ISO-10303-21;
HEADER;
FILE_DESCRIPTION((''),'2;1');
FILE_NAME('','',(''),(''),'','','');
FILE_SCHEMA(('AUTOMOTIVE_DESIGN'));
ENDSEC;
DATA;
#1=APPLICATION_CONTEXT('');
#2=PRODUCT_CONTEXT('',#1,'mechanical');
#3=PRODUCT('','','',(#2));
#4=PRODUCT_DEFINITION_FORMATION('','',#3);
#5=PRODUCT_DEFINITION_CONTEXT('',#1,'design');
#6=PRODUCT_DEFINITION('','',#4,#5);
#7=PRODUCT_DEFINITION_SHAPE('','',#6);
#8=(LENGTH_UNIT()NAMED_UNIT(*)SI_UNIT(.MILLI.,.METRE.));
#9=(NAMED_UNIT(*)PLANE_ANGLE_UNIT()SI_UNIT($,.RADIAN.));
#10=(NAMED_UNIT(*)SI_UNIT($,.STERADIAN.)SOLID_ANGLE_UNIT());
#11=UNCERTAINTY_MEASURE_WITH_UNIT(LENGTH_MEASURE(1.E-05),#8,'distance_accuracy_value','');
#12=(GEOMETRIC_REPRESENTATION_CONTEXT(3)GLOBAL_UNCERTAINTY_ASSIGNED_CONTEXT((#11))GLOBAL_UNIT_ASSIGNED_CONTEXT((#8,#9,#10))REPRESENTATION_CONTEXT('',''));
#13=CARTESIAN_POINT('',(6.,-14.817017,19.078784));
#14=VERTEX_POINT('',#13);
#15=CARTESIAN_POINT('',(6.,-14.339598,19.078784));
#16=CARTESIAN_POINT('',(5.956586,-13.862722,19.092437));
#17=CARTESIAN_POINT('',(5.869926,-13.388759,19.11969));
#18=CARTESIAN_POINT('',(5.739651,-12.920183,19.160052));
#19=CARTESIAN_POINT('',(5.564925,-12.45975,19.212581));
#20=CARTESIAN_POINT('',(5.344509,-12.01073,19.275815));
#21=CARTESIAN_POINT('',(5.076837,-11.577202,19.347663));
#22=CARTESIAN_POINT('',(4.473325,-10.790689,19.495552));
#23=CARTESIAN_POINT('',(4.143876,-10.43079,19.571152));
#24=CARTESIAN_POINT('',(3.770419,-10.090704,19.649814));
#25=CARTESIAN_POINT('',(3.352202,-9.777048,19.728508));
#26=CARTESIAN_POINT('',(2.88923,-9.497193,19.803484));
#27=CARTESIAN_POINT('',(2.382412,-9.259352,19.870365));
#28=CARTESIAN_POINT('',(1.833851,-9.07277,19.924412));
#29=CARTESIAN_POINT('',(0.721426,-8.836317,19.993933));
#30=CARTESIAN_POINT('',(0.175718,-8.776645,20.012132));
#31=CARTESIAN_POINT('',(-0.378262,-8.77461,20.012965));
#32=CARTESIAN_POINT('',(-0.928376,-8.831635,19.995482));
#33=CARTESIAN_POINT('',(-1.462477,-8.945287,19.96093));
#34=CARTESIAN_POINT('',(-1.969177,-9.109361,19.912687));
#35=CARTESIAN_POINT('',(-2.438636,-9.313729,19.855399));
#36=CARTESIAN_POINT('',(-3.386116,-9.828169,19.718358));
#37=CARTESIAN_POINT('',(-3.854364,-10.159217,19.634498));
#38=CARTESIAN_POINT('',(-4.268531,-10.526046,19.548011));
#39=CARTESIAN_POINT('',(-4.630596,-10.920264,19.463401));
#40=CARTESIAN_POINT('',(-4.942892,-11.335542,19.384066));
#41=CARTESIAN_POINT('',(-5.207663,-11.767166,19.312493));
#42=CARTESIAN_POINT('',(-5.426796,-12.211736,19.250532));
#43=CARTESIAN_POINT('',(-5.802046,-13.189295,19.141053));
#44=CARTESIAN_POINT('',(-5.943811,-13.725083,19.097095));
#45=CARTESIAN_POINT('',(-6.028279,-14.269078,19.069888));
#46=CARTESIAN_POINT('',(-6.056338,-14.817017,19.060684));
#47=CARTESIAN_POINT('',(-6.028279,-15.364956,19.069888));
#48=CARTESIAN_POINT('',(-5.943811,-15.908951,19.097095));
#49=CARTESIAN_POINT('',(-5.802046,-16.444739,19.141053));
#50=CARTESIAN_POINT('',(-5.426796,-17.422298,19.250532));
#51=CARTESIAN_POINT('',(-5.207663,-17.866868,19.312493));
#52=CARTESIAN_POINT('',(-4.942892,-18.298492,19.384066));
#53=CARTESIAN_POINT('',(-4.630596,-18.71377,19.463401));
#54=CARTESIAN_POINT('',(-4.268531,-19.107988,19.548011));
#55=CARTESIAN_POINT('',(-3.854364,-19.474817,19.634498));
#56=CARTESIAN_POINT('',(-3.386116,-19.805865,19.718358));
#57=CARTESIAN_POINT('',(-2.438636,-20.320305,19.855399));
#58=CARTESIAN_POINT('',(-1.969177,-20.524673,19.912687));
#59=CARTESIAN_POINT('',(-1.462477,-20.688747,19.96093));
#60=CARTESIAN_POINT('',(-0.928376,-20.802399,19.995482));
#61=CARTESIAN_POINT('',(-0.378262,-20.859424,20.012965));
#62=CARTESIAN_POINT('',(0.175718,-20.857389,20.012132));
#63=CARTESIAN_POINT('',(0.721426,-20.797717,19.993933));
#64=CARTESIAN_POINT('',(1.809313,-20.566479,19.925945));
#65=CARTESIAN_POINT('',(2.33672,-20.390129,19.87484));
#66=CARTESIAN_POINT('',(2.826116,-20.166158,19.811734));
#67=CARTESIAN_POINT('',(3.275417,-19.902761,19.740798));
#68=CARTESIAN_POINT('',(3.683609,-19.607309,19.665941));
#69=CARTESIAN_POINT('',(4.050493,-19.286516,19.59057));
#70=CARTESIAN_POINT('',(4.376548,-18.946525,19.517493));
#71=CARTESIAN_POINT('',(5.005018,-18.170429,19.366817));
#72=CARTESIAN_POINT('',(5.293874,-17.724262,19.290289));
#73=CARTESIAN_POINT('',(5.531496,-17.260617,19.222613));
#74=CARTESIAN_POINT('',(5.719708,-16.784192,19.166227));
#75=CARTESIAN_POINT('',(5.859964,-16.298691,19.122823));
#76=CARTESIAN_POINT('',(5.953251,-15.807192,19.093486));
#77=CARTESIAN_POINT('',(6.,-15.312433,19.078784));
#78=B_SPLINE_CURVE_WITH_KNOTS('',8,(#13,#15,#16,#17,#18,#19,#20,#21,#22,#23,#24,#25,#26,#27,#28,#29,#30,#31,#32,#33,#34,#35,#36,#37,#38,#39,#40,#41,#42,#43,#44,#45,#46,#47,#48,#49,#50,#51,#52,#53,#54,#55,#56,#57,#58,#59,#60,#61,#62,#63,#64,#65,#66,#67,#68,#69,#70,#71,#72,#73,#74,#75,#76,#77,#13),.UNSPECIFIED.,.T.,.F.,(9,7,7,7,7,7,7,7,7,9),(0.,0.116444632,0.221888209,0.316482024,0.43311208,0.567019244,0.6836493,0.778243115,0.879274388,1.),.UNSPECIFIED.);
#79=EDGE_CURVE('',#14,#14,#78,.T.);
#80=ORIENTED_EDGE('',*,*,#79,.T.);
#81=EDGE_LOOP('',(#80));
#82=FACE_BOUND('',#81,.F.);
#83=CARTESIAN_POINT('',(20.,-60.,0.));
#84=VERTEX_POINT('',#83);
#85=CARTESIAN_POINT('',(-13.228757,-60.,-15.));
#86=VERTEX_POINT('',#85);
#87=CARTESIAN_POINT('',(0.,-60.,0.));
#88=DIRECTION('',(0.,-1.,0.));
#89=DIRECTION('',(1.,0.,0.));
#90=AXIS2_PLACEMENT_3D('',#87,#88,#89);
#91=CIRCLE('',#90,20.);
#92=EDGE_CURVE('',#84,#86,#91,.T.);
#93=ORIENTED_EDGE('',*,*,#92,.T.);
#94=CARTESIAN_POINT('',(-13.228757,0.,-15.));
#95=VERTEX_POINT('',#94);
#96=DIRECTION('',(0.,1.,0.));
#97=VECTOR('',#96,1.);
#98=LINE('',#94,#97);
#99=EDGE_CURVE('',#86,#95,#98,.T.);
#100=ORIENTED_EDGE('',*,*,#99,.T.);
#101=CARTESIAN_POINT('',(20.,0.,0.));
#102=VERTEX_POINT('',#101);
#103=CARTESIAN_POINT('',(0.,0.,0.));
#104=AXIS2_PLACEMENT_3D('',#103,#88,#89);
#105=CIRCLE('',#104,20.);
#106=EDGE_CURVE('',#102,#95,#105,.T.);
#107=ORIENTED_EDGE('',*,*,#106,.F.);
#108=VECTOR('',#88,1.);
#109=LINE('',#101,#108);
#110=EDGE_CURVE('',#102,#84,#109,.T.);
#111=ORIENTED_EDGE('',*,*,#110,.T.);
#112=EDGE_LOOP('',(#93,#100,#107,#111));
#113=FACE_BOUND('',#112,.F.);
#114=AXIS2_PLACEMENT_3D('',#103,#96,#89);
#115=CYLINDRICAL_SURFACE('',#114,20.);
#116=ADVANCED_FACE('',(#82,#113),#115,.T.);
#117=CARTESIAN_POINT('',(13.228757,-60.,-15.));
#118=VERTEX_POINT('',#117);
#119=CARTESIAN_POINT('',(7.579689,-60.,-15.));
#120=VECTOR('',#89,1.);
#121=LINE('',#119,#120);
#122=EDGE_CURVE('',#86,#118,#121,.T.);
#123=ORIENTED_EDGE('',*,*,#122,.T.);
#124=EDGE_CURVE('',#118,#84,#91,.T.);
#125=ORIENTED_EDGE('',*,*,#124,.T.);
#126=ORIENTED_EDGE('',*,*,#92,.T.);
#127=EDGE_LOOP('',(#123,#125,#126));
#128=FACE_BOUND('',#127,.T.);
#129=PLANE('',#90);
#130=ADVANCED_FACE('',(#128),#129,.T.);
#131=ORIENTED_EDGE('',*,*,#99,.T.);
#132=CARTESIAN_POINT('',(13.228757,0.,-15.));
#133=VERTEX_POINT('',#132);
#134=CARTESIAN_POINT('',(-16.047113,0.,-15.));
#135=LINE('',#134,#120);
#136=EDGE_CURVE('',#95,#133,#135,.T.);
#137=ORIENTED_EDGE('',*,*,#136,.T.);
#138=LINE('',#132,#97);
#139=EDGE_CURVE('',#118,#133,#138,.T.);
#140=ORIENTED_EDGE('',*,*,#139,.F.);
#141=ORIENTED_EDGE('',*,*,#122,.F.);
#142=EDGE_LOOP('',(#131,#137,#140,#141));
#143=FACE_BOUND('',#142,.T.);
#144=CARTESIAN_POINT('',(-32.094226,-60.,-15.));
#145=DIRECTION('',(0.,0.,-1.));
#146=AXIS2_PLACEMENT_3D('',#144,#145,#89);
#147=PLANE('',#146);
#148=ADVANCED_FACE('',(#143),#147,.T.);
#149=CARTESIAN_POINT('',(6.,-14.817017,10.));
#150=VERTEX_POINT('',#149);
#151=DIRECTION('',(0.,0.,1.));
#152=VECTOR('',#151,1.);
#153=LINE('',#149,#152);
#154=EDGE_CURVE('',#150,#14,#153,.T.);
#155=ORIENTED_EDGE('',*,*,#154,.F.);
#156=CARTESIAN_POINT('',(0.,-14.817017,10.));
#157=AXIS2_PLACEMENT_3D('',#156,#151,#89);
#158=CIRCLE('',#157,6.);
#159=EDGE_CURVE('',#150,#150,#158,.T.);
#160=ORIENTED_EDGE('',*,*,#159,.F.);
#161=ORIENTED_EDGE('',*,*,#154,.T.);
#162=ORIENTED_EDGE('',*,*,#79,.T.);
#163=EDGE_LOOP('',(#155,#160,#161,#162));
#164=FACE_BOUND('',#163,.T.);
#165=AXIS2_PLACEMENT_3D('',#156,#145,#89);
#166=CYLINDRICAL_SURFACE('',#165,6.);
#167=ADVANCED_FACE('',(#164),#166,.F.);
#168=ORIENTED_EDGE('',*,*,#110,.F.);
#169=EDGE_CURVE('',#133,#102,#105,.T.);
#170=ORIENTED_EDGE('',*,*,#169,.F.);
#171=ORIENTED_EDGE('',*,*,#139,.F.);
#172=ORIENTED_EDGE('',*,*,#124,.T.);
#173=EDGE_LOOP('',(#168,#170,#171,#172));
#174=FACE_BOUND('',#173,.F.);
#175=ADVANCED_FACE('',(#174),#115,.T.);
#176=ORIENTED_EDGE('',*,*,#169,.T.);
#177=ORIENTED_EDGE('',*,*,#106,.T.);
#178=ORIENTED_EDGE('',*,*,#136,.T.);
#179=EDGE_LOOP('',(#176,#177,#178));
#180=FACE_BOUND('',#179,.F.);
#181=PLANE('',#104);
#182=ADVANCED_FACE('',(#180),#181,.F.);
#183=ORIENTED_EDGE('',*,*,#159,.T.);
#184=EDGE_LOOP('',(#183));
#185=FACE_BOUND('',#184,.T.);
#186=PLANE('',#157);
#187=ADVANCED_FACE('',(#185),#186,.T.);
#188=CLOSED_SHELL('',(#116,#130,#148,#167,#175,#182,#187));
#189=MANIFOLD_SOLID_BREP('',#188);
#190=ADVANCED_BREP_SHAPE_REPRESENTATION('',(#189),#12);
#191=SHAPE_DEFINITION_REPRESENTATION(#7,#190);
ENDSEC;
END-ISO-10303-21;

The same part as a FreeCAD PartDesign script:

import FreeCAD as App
import Part
import Sketcher
from FreeCAD import Vector

doc = App.newDocument("Part")
body = doc.addObject("PartDesign::Body", "Body")

# Sketch on XZ plane
sketch1 = doc.addObject("Sketcher::SketchObject", "Sketch")
body.addObject(sketch1)
sketch1.AttachmentSupport = (doc.XZ_Plane, [""])
sketch1.MapMode = "FlatFace"
sketch1.addGeometry(Part.Circle(Vector(0, 0, 0), Vector(0, 0, 1), 20), False)
sketch1.addConstraint(Sketcher.Constraint("Coincident", 0, 3, -1, 1))
sketch1.addConstraint(Sketcher.Constraint("Diameter", 0, 40.0))
pad1 = doc.addObject("PartDesign::Pad", "Pad")
body.addObject(pad1)
pad1.Profile = sketch1
pad1.Length = 60

# Sketch on XY plane
sketch2 = doc.addObject("Sketcher::SketchObject", "Sketch001")
body.addObject(sketch2)
sketch2.AttachmentSupport = (doc.XY_Plane, [""])
sketch2.MapMode = "FlatFace"
sketch2.AttachmentOffset = App.Placement(Vector(0, 0, 10), App.Rotation())
sketch2.addGeometry(Part.Circle(Vector(0, -15, 0), Vector(0, 0, 1), 6), False)
sketch2.addConstraint(Sketcher.Constraint("PointOnObject", 0, 3, -2))
sketch2.addConstraint(Sketcher.Constraint("Diameter", 0, 12.0))
sketch2.addConstraint(Sketcher.Constraint("DistanceY", 0, 3, -1, 1, 14.817017))
pocket1 = doc.addObject("PartDesign::Pocket", "Pocket")
body.addObject(pocket1)
pocket1.Profile = sketch2
pocket1.Length = 23.59607
pocket1.Reversed = True

# Sketch on XZ plane
sketch3 = doc.addObject("Sketcher::SketchObject", "Sketch002")
body.addObject(sketch3)
sketch3.AttachmentSupport = (doc.XZ_Plane, [""])
sketch3.MapMode = "FlatFace"
sketch3.AttachmentOffset = App.Placement(Vector(0, 0, 60), App.Rotation())
sketch3.addGeometry(Part.LineSegment(Vector(-32, -15, 0), Vector(-32, -32, 0)), False)
sketch3.addGeometry(Part.LineSegment(Vector(-32, -32, 0), Vector(47, -32, 0)), False)
sketch3.addGeometry(Part.LineSegment(Vector(47, -32, 0), Vector(47, -15, 0)), False)
sketch3.addGeometry(Part.LineSegment(Vector(47, -15, 0), Vector(-32, -15, 0)), False)
sketch3.addConstraint(Sketcher.Constraint("Coincident", 0, 2, 1, 1))
sketch3.addConstraint(Sketcher.Constraint("Coincident", 1, 2, 2, 1))
sketch3.addConstraint(Sketcher.Constraint("Coincident", 2, 2, 3, 1))
sketch3.addConstraint(Sketcher.Constraint("Coincident", 3, 2, 0, 1))
sketch3.addConstraint(Sketcher.Constraint("Vertical", 0))
sketch3.addConstraint(Sketcher.Constraint("Horizontal", 1))
sketch3.addConstraint(Sketcher.Constraint("Vertical", 2))
sketch3.addConstraint(Sketcher.Constraint("Horizontal", 3))
sketch3.addConstraint(Sketcher.Constraint("DistanceY", 2, 2, -1, 1, 15.0))
sketch3.addConstraint(Sketcher.Constraint("DistanceX", 1, 1, 1, 2, 79.34783))
sketch3.addConstraint(Sketcher.Constraint("DistanceY", 0, 2, 0, 1, 17.173914))
sketch3.addConstraint(Sketcher.Constraint("DistanceX", 0, 2, -1, 1, 32.094226))
pocket2 = doc.addObject("PartDesign::Pocket", "Pocket001")
body.addObject(pocket2)
pocket2.Profile = sketch3
pocket2.Length = 121.24079

doc.recompute()
